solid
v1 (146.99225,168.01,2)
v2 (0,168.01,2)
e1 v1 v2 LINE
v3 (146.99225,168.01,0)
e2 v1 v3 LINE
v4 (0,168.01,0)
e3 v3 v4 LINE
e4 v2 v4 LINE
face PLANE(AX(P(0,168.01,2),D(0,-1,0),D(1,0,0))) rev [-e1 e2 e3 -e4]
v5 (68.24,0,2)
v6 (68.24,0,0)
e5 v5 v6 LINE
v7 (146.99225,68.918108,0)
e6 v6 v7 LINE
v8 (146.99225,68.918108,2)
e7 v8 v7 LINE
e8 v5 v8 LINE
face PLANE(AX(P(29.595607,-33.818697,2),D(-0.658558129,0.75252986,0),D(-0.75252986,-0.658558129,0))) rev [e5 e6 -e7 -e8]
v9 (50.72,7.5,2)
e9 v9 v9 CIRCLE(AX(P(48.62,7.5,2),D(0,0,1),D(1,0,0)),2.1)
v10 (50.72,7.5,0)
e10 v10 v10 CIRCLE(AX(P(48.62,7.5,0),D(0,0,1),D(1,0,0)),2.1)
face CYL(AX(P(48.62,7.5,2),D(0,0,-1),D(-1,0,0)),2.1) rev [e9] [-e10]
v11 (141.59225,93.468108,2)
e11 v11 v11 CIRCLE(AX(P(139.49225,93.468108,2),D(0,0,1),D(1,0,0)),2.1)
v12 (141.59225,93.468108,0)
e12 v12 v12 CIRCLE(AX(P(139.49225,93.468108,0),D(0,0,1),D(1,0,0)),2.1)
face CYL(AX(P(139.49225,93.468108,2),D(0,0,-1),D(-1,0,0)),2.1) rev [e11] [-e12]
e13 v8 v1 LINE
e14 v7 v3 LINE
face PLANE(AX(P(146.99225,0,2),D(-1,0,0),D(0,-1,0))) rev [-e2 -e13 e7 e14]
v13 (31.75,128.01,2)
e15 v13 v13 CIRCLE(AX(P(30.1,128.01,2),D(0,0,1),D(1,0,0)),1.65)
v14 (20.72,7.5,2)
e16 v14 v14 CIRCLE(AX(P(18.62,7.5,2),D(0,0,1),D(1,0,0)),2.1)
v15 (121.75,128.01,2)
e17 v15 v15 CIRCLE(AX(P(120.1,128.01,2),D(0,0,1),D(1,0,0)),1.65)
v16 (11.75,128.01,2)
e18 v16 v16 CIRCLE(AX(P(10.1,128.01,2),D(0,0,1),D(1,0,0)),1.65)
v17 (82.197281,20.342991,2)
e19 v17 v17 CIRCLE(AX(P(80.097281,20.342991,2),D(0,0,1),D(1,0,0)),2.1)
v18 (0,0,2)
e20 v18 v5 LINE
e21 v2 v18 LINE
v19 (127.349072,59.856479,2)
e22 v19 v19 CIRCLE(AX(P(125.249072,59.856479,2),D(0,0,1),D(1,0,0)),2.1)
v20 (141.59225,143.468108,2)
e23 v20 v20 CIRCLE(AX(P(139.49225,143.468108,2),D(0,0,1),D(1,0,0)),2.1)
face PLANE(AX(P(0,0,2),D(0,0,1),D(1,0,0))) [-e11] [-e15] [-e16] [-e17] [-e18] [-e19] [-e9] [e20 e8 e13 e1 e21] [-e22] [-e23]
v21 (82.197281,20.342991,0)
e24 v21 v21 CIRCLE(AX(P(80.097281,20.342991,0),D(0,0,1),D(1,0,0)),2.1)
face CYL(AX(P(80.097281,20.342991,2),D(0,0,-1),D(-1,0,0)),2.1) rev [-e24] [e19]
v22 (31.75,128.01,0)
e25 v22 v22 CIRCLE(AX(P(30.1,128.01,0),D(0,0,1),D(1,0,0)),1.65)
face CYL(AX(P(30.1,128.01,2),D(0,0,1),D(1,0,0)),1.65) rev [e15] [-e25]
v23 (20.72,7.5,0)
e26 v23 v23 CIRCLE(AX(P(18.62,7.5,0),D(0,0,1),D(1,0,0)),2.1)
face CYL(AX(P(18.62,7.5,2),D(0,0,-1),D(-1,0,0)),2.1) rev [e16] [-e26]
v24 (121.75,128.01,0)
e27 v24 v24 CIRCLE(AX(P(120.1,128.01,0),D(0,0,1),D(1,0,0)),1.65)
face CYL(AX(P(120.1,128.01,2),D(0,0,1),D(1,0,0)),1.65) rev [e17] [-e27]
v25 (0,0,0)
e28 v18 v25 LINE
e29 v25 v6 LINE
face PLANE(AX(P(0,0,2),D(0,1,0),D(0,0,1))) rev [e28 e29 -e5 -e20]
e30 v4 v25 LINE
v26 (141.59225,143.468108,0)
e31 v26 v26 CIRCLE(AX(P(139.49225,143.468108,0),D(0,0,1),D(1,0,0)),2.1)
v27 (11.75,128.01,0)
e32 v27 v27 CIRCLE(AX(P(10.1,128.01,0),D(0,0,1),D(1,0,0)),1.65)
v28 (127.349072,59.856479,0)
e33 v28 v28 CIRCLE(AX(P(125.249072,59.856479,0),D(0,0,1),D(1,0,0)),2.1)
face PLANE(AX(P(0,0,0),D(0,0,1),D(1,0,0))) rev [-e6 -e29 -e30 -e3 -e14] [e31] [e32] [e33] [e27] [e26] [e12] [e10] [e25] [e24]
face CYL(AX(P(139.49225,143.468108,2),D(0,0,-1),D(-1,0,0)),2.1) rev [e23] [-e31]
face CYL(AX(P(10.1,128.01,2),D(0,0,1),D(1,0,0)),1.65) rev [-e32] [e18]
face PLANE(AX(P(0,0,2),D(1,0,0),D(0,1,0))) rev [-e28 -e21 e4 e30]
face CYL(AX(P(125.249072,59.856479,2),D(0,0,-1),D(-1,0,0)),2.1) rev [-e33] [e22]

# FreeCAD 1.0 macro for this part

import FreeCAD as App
import Part
import Sketcher
Q = App.Units.Quantity


def add_polygon(sketch, points):
    """Adds a closed chain of lines whose ends are joined by coincident constraints."""
    first, n = sketch.GeometryCount, len(points)
    for a, b in zip(points, points[1:] + points[:1]):
        sketch.addGeometry(Part.LineSegment(App.Vector(*a, 0), App.Vector(*b, 0)), False)
    for i in range(n):
        sketch.addConstraint(Sketcher.Constraint("Coincident", first + i, 2, first + (i + 1) % n, 1))

doc = App.newDocument("Part")
body = doc.addObject("PartDesign::Body", "Body")

# Sketch on XY plane
sketch1 = body.newObject("Sketcher::SketchObject", "Sketch")
sketch1.AttachmentSupport = (doc.getObject("XY_Plane"), [""])
sketch1.MapMode = "FlatFace"
add_polygon(sketch1, [(0, 0), (68.24, 0), (146.99225, 68.918108), (146.99225, 168.01), (0, 168.01)])  # lines 0-4
sketch1.addGeometry(Part.Circle(App.Vector(18.62, 7.5, 0), App.Vector(0, 0, 1), 2.1), False)  # 5
sketch1.addGeometry(Part.Circle(App.Vector(48.62, 7.5, 0), App.Vector(0, 0, 1), 2.1), False)  # 6
sketch1.addGeometry(Part.Circle(App.Vector(80.097281, 20.342991, 0), App.Vector(0, 0, 1), 2.1), False)  # 7
sketch1.addGeometry(Part.Circle(App.Vector(125.249072, 59.856479, 0), App.Vector(0, 0, 1), 2.1), False)  # 8
sketch1.addGeometry(Part.Circle(App.Vector(139.49225, 93.468108, 0), App.Vector(0, 0, 1), 2.1), False)  # 9
sketch1.addGeometry(Part.Circle(App.Vector(139.49225, 143.468108, 0), App.Vector(0, 0, 1), 2.1), False)  # 10
sketch1.addConstraint([
    Sketcher.Constraint("Horizontal", 0),
    Sketcher.Constraint("Vertical", 2),
    Sketcher.Constraint("Horizontal", 3),
    Sketcher.Constraint("Vertical", 4),
    Sketcher.Constraint("Coincident", 4, 2, -1, 1),
    Sketcher.Constraint("Equal", 5, 6),
    Sketcher.Constraint("Equal", 6, 7),
    Sketcher.Constraint("Equal", 7, 8),
    Sketcher.Constraint("Equal", 8, 9),
    Sketcher.Constraint("Equal", 9, 10),
    Sketcher.Constraint("Horizontal", 5, 3, 6, 3),
    Sketcher.Constraint("Vertical", 9, 3, 10, 3),
    Sketcher.Constraint("Diameter", 5, 4.2),
    Sketcher.Constraint("DistanceX", 5, 3, 6, 3, 30.0),
    Sketcher.Constraint("DistanceY", 9, 3, 10, 3, 50.0),
    Sketcher.Constraint("DistanceX", 0, 1, 0, 2, 68.24),
    Sketcher.Constraint("DistanceY", 4, 2, 4, 1, 168.01),
    Sketcher.Constraint("DistanceY", -1, 1, 5, 3, 7.5),
    Sketcher.Constraint("Angle", 1, Q("41.19 deg")),
    Sketcher.Constraint("DistanceX", 9, 3, 1, 2, 7.5),
    Sketcher.Constraint("Distance", 1, 104.65),
    Sketcher.Constraint("DistanceX", -1, 1, 5, 3, 18.62),
    Sketcher.Constraint("DistanceY", 1, 2, 9, 3, 24.55),
    Sketcher.Constraint("DistanceX", -1, 1, 7, 3, 80.097281),
    Sketcher.Constraint("DistanceY", -1, 1, 7, 3, 20.342991),
    Sketcher.Constraint("DistanceY", -1, 1, 8, 3, 59.856479),
    Sketcher.Constraint("DistanceX", 7, 3, 8, 3, 45.151792),
])
pad1 = body.newObject("PartDesign::Pad", "Pad")
pad1.Profile = sketch1
pad1.Length = 2

# Sketch on XY plane
sketch2 = body.newObject("Sketcher::SketchObject", "Sketch001")
sketch2.AttachmentSupport = (doc.getObject("XY_Plane"), [""])
sketch2.MapMode = "FlatFace"
sketch2.AttachmentOffset = App.Placement(App.Vector(0, 0, 2), App.Rotation())
sketch2.addGeometry([
    Part.Circle(App.Vector(10.1, 128.01, 0), App.Vector(0, 0, 1), 1),
    Part.Circle(App.Vector(30.1, 128.01, 0), App.Vector(0, 0, 1), 1),
    Part.Circle(App.Vector(120.1, 128.01, 0), App.Vector(0, 0, 1), 1),
], False)
sketch2.addConstraint([
    Sketcher.Constraint("Equal", 0, 1),
    Sketcher.Constraint("Equal", 1, 2),
    Sketcher.Constraint("Horizontal", 0, 3, 1, 3),
    Sketcher.Constraint("Horizontal", 1, 3, 2, 3),
    Sketcher.Constraint("Diameter", 0, 2.0),
    Sketcher.Constraint("DistanceX", 0, 3, 1, 3, 20.0),
    Sketcher.Constraint("DistanceX", 1, 3, 2, 3, 90.0),
    Sketcher.Constraint("DistanceX", -1, 1, 0, 3, 10.1),
    Sketcher.Constraint("DistanceY", -1, 1, 0, 3, 128.01),
])
pocket1 = body.newObject("PartDesign::Pocket", "Pocket")
pocket1.Profile = sketch2
pocket1.Length = 10

# Sketch on XY plane
sketch3 = body.newObject("Sketcher::SketchObject", "Sketch002")
sketch3.AttachmentSupport = (doc.getObject("XY_Plane"), [""])
sketch3.MapMode = "FlatFace"
sketch3.AttachmentOffset = App.Placement(App.Vector(0, 0, 2), App.Rotation())
sketch3.addGeometry([
    Part.Circle(App.Vector(10.1, 128.01, 0), App.Vector(0, 0, 1), 1.65),
    Part.Circle(App.Vector(30.1, 128.01, 0), App.Vector(0, 0, 1), 1.65),
    Part.Circle(App.Vector(120.1, 128.01, 0), App.Vector(0, 0, 1), 1.65),
], False)
sketch3.addConstraint([
    Sketcher.Constraint("Equal", 0, 1),
    Sketcher.Constraint("Equal", 1, 2),
    Sketcher.Constraint("Horizontal", 0, 3, 1, 3),
    Sketcher.Constraint("Horizontal", 1, 3, 2, 3),
    Sketcher.Constraint("Diameter", 0, 3.3),
    Sketcher.Constraint("DistanceX", 0, 3, 1, 3, 20.0),
    Sketcher.Constraint("DistanceX", 1, 3, 2, 3, 90.0),
    Sketcher.Constraint("DistanceX", -1, 1, 0, 3, 10.1),
    Sketcher.Constraint("DistanceY", -1, 1, 0, 3, 128.01),
])
doc.recompute()
hole = body.newObject("PartDesign::Hole", "Hole")
hole.Profile = sketch3
hole.ThreadType = "None"
hole.Diameter = 3.3
hole.DepthType = "Dimension"
hole.Depth = 11.5
hole.DrillPoint = "Angled"
hole.DrillPointAngle = 118

doc.recompute()
